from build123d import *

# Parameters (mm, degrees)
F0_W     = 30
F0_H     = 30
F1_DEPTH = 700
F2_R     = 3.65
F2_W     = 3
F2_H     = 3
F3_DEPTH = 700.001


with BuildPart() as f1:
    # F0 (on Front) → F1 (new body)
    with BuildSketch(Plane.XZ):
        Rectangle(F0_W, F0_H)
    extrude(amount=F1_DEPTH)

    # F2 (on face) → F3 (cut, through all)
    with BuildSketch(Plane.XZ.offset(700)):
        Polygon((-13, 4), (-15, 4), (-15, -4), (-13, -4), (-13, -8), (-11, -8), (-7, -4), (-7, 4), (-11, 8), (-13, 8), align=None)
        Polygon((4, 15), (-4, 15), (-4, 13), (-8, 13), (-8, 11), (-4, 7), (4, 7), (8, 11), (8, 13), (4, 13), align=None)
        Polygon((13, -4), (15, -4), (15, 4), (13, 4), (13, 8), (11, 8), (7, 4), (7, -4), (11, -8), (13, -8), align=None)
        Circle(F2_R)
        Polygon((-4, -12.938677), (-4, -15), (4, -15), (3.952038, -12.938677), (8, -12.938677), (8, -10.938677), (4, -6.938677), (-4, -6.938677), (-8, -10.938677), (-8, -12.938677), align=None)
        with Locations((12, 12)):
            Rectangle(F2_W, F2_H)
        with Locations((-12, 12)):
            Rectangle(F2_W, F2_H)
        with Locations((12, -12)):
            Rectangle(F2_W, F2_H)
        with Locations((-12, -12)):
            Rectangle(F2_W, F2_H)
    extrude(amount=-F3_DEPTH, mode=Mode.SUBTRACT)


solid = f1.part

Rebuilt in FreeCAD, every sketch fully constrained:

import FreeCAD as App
import Part
import Sketcher
Q = App.Units.Quantity

doc = App.newDocument("Part")
body = doc.addObject("PartDesign::Body", "Body")

sketch1 = doc.addObject("Sketcher::SketchObject", "Sketch")
body.addObject(sketch1)
sketch1.AttachmentSupport = (doc.XZ_Plane, [""])
sketch1.MapMode = "FlatFace"
sketch1.addGeometry(Part.LineSegment(App.Vector(-15, 15, 0), App.Vector(-15, -15, 0)), False)
sketch1.addGeometry(Part.LineSegment(App.Vector(-15, -15, 0), App.Vector(15, -15, 0)), False)
sketch1.addGeometry(Part.LineSegment(App.Vector(15, -15, 0), App.Vector(15, 15, 0)), False)
sketch1.addGeometry(Part.LineSegment(App.Vector(15, 15, 0), App.Vector(-15, 15, 0)), False)
sketch1.addConstraint(Sketcher.Constraint("Coincident", 0, 2, 1, 1))
sketch1.addConstraint(Sketcher.Constraint("Coincident", 1, 2, 2, 1))
sketch1.addConstraint(Sketcher.Constraint("Coincident", 2, 2, 3, 1))
sketch1.addConstraint(Sketcher.Constraint("Coincident", 3, 2, 0, 1))
sketch1.addConstraint(Sketcher.Constraint("Vertical", 0))
sketch1.addConstraint(Sketcher.Constraint("Horizontal", 1))
sketch1.addConstraint(Sketcher.Constraint("Vertical", 2))
sketch1.addConstraint(Sketcher.Constraint("Horizontal", 3))
sketch1.addConstraint(Sketcher.Constraint("Symmetric", 0, 2, 2, 2, -1, 1))
sketch1.addConstraint(Sketcher.Constraint("Equal", 3, 0))
sketch1.addConstraint(Sketcher.Constraint("DistanceX", 1, 1, 1, 2, Q("30 mm")))
pad1 = doc.addObject("PartDesign::Pad", "Pad")
body.addObject(pad1)
pad1.Profile = sketch1
pad1.Length = 700

sketch2 = doc.addObject("Sketcher::SketchObject", "Sketch001")
body.addObject(sketch2)
sketch2.AttachmentSupport = (doc.XZ_Plane, [""])
sketch2.MapMode = "FlatFace"
sketch2.AttachmentOffset = App.Placement(App.Vector(0, 0, 700), App.Rotation())
sketch2.addGeometry(Part.LineSegment(App.Vector(-13, 4, 0), App.Vector(-15, 4, 0)), False)
sketch2.addGeometry(Part.LineSegment(App.Vector(-15, 4, 0), App.Vector(-15, -4, 0)), False)
sketch2.addGeometry(Part.LineSegment(App.Vector(-15, -4, 0), App.Vector(-13, -4, 0)), False)
sketch2.addGeometry(Part.LineSegment(App.Vector(-13, -4, 0), App.Vector(-13, -8, 0)), False)
sketch2.addGeometry(Part.LineSegment(App.Vector(-13, -8, 0), App.Vector(-11, -8, 0)), False)
sketch2.addGeometry(Part.LineSegment(App.Vector(-11, -8, 0), App.Vector(-7, -4, 0)), False)
sketch2.addGeometry(Part.LineSegment(App.Vector(-7, -4, 0), App.Vector(-7, 4, 0)), False)
sketch2.addGeometry(Part.LineSegment(App.Vector(-7, 4, 0), App.Vector(-11, 8, 0)), False)
sketch2.addGeometry(Part.LineSegment(App.Vector(-11, 8, 0), App.Vector(-13, 8, 0)), False)
sketch2.addGeometry(Part.LineSegment(App.Vector(-13, 8, 0), App.Vector(-13, 4, 0)), False)
sketch2.addGeometry(Part.LineSegment(App.Vector(4, 15, 0), App.Vector(-4, 15, 0)), False)
sketch2.addGeometry(Part.LineSegment(App.Vector(-4, 15, 0), App.Vector(-4, 13, 0)), False)
sketch2.addGeometry(Part.LineSegment(App.Vector(-4, 13, 0), App.Vector(-8, 13, 0)), False)
sketch2.addGeometry(Part.LineSegment(App.Vector(-8, 13, 0), App.Vector(-8, 11, 0)), False)
sketch2.addGeometry(Part.LineSegment(App.Vector(-8, 11, 0), App.Vector(-4, 7, 0)), False)
sketch2.addGeometry(Part.LineSegment(App.Vector(-4, 7, 0), App.Vector(4, 7, 0)), False)
sketch2.addGeometry(Part.LineSegment(App.Vector(4, 7, 0), App.Vector(8, 11, 0)), False)
sketch2.addGeometry(Part.LineSegment(App.Vector(8, 11, 0), App.Vector(8, 13, 0)), False)
sketch2.addGeometry(Part.LineSegment(App.Vector(8, 13, 0), App.Vector(4, 13, 0)), False)
sketch2.addGeometry(Part.LineSegment(App.Vector(4, 13, 0), App.Vector(4, 15, 0)), False)
sketch2.addGeometry(Part.LineSegment(App.Vector(13, -4, 0), App.Vector(15, -4, 0)), False)
sketch2.addGeometry(Part.LineSegment(App.Vector(15, -4, 0), App.Vector(15, 4, 0)), False)
sketch2.addGeometry(Part.LineSegment(App.Vector(15, 4, 0), App.Vector(13, 4, 0)), False)
sketch2.addGeometry(Part.LineSegment(App.Vector(13, 4, 0), App.Vector(13, 8, 0)), False)
sketch2.addGeometry(Part.LineSegment(App.Vector(13, 8, 0), App.Vector(11, 8, 0)), False)
sketch2.addGeometry(Part.LineSegment(App.Vector(11, 8, 0), App.Vector(7, 4, 0)), False)
sketch2.addGeometry(Part.LineSegment(App.Vector(7, 4, 0), App.Vector(7, -4, 0)), False)
sketch2.addGeometry(Part.LineSegment(App.Vector(7, -4, 0), App.Vector(11, -8, 0)), False)
sketch2.addGeometry(Part.LineSegment(App.Vector(11, -8, 0), App.Vector(13, -8, 0)), False)
sketch2.addGeometry(Part.LineSegment(App.Vector(13, -8, 0), App.Vector(13, -4, 0)), False)
sketch2.addGeometry(Part.Circle(App.Vector(0, 0, 0), App.Vector(0, 0, 1), 3.65), False)
sketch2.addGeometry(Part.LineSegment(App.Vector(-4, -12.938677, 0), App.Vector(-4, -15, 0)), False)
sketch2.addGeometry(Part.LineSegment(App.Vector(-4, -15, 0), App.Vector(4, -15, 0)), False)
sketch2.addGeometry(Part.LineSegment(App.Vector(4, -15, 0), App.Vector(3.952038, -12.938677, 0)), False)
sketch2.addGeometry(Part.LineSegment(App.Vector(3.952038, -12.938677, 0), App.Vector(8, -12.938677, 0)), False)
sketch2.addGeometry(Part.LineSegment(App.Vector(8, -12.938677, 0), App.Vector(8, -10.938677, 0)), False)
sketch2.addGeometry(Part.LineSegment(App.Vector(8, -10.938677, 0), App.Vector(4, -6.938677, 0)), False)
sketch2.addGeometry(Part.LineSegment(App.Vector(4, -6.938677, 0), App.Vector(-4, -6.938677, 0)), False)
sketch2.addGeometry(Part.LineSegment(App.Vector(-4, -6.938677, 0), App.Vector(-8, -10.938677, 0)), False)
sketch2.addGeometry(Part.LineSegment(App.Vector(-8, -10.938677, 0), App.Vector(-8, -12.938677, 0)), False)
sketch2.addGeometry(Part.LineSegment(App.Vector(-8, -12.938677, 0), App.Vector(-4, -12.938677, 0)), False)
sketch2.addGeometry(Part.LineSegment(App.Vector(10.5, 13.5, 0), App.Vector(10.5, 10.5, 0)), False)
sketch2.addGeometry(Part.LineSegment(App.Vector(10.5, 10.5, 0), App.Vector(13.5, 10.5, 0)), False)
sketch2.addGeometry(Part.LineSegment(App.Vector(13.5, 10.5, 0), App.Vector(13.5, 13.5, 0)), False)
sketch2.addGeometry(Part.LineSegment(App.Vector(13.5, 13.5, 0), App.Vector(10.5, 13.5, 0)), False)
sketch2.addGeometry(Part.LineSegment(App.Vector(-13.5, 13.5, 0), App.Vector(-13.5, 10.5, 0)), False)
sketch2.addGeometry(Part.LineSegment(App.Vector(-13.5, 10.5, 0), App.Vector(-10.5, 10.5, 0)), False)
sketch2.addGeometry(Part.LineSegment(App.Vector(-10.5, 10.5, 0), App.Vector(-10.5, 13.5, 0)), False)
sketch2.addGeometry(Part.LineSegment(App.Vector(-10.5, 13.5, 0), App.Vector(-13.5, 13.5, 0)), False)
sketch2.addGeometry(Part.LineSegment(App.Vector(10.5, -10.5, 0), App.Vector(10.5, -13.5, 0)), False)
sketch2.addGeometry(Part.LineSegment(App.Vector(10.5, -13.5, 0), App.Vector(13.5, -13.5, 0)), False)
sketch2.addGeometry(Part.LineSegment(App.Vector(13.5, -13.5, 0), App.Vector(13.5, -10.5, 0)), False)
sketch2.addGeometry(Part.LineSegment(App.Vector(13.5, -10.5, 0), App.Vector(10.5, -10.5, 0)), False)
sketch2.addGeometry(Part.LineSegment(App.Vector(-13.5, -10.5, 0), App.Vector(-13.5, -13.5, 0)), False)
sketch2.addGeometry(Part.LineSegment(App.Vector(-13.5, -13.5, 0), App.Vector(-10.5, -13.5, 0)), False)
sketch2.addGeometry(Part.LineSegment(App.Vector(-10.5, -13.5, 0), App.Vector(-10.5, -10.5, 0)), False)
sketch2.addGeometry(Part.LineSegment(App.Vector(-10.5, -10.5, 0), App.Vector(-13.5, -10.5, 0)), False)
sketch2.addConstraint(Sketcher.Constraint("Coincident", 0, 2, 1, 1))
sketch2.addConstraint(Sketcher.Constraint("Coincident", 1, 2, 2, 1))
sketch2.addConstraint(Sketcher.Constraint("Coincident", 2, 2, 3, 1))
sketch2.addConstraint(Sketcher.Constraint("Coincident", 3, 2, 4, 1))
sketch2.addConstraint(Sketcher.Constraint("Coincident", 4, 2, 5, 1))
sketch2.addConstraint(Sketcher.Constraint("Coincident", 5, 2, 6, 1))
sketch2.addConstraint(Sketcher.Constraint("Coincident", 6, 2, 7, 1))
sketch2.addConstraint(Sketcher.Constraint("Coincident", 7, 2, 8, 1))
sketch2.addConstraint(Sketcher.Constraint("Coincident", 8, 2, 9, 1))
sketch2.addConstraint(Sketcher.Constraint("Coincident", 9, 2, 0, 1))
sketch2.addConstraint(Sketcher.Constraint("Coincident", 10, 2, 11, 1))
sketch2.addConstraint(Sketcher.Constraint("Coincident", 11, 2, 12, 1))
sketch2.addConstraint(Sketcher.Constraint("Coincident", 12, 2, 13, 1))
sketch2.addConstraint(Sketcher.Constraint("Coincident", 13, 2, 14, 1))
sketch2.addConstraint(Sketcher.Constraint("Coincident", 14, 2, 15, 1))
sketch2.addConstraint(Sketcher.Constraint("Coincident", 15, 2, 16, 1))
sketch2.addConstraint(Sketcher.Constraint("Coincident", 16, 2, 17, 1))
sketch2.addConstraint(Sketcher.Constraint("Coincident", 17, 2, 18, 1))
sketch2.addConstraint(Sketcher.Constraint("Coincident", 18, 2, 19, 1))
sketch2.addConstraint(Sketcher.Constraint("Coincident", 19, 2, 10, 1))
sketch2.addConstraint(Sketcher.Constraint("Coincident", 20, 2, 21, 1))
sketch2.addConstraint(Sketcher.Constraint("Coincident", 21, 2, 22, 1))
sketch2.addConstraint(Sketcher.Constraint("Coincident", 22, 2, 23, 1))
sketch2.addConstraint(Sketcher.Constraint("Coincident", 23, 2, 24, 1))
sketch2.addConstraint(Sketcher.Constraint("Coincident", 24, 2, 25, 1))
sketch2.addConstraint(Sketcher.Constraint("Coincident", 25, 2, 26, 1))
sketch2.addConstraint(Sketcher.Constraint("Coincident", 26, 2, 27, 1))
sketch2.addConstraint(Sketcher.Constraint("Coincident", 27, 2, 28, 1))
sketch2.addConstraint(Sketcher.Constraint("Coincident", 28, 2, 29, 1))
sketch2.addConstraint(Sketcher.Constraint("Coincident", 29, 2, 20, 1))
sketch2.addConstraint(Sketcher.Constraint("Coincident", 31, 2, 32, 1))
sketch2.addConstraint(Sketcher.Constraint("Coincident", 32, 2, 33, 1))
sketch2.addConstraint(Sketcher.Constraint("Coincident", 33, 2, 34, 1))
sketch2.addConstraint(Sketcher.Constraint("Coincident", 34, 2, 35, 1))
sketch2.addConstraint(Sketcher.Constraint("Coincident", 35, 2, 36, 1))
sketch2.addConstraint(Sketcher.Constraint("Coincident", 36, 2, 37, 1))
sketch2.addConstraint(Sketcher.Constraint("Coincident", 37, 2, 38, 1))
sketch2.addConstraint(Sketcher.Constraint("Coincident", 38, 2, 39, 1))
sketch2.addConstraint(Sketcher.Constraint("Coincident", 39, 2, 40, 1))
sketch2.addConstraint(Sketcher.Constraint("Coincident", 40, 2, 31, 1))
sketch2.addConstraint(Sketcher.Constraint("Coincident", 41, 2, 42, 1))
sketch2.addConstraint(Sketcher.Constraint("Coincident", 42, 2, 43, 1))
sketch2.addConstraint(Sketcher.Constraint("Coincident", 43, 2, 44, 1))
sketch2.addConstraint(Sketcher.Constraint("Coincident", 44, 2, 41, 1))
sketch2.addConstraint(Sketcher.Constraint("Coincident", 45, 2, 46, 1))
sketch2.addConstraint(Sketcher.Constraint("Coincident", 46, 2, 47, 1))
sketch2.addConstraint(Sketcher.Constraint("Coincident", 47, 2, 48, 1))
sketch2.addConstraint(Sketcher.Constraint("Coincident", 48, 2, 45, 1))
sketch2.addConstraint(Sketcher.Constraint("Coincident", 49, 2, 50, 1))
sketch2.addConstraint(Sketcher.Constraint("Coincident", 50, 2, 51, 1))
sketch2.addConstraint(Sketcher.Constraint("Coincident", 51, 2, 52, 1))
sketch2.addConstraint(Sketcher.Constraint("Coincident", 52, 2, 49, 1))
sketch2.addConstraint(Sketcher.Constraint("Coincident", 53, 2, 54, 1))
sketch2.addConstraint(Sketcher.Constraint("Coincident", 54, 2, 55, 1))
sketch2.addConstraint(Sketcher.Constraint("Coincident", 55, 2, 56, 1))
sketch2.addConstraint(Sketcher.Constraint("Coincident", 56, 2, 53, 1))
sketch2.addConstraint(Sketcher.Constraint("Horizontal", 0))
sketch2.addConstraint(Sketcher.Constraint("Vertical", 1))
sketch2.addConstraint(Sketcher.Constraint("Horizontal", 2))
sketch2.addConstraint(Sketcher.Constraint("Vertical", 3))
sketch2.addConstraint(Sketcher.Constraint("Horizontal", 4))
sketch2.addConstraint(Sketcher.Constraint("Vertical", 6))
sketch2.addConstraint(Sketcher.Constraint("Horizontal", 8))
sketch2.addConstraint(Sketcher.Constraint("Vertical", 9))
sketch2.addConstraint(Sketcher.Constraint("Horizontal", 10))
sketch2.addConstraint(Sketcher.Constraint("Vertical", 11))
sketch2.addConstraint(Sketcher.Constraint("Horizontal", 12))
sketch2.addConstraint(Sketcher.Constraint("Vertical", 13))
sketch2.addConstraint(Sketcher.Constraint("Horizontal", 15))
sketch2.addConstraint(Sketcher.Constraint("Vertical", 17))
sketch2.addConstraint(Sketcher.Constraint("Horizontal", 18))
sketch2.addConstraint(Sketcher.Constraint("Vertical", 19))
sketch2.addConstraint(Sketcher.Constraint("Horizontal", 20))
sketch2.addConstraint(Sketcher.Constraint("Vertical", 21))
sketch2.addConstraint(Sketcher.Constraint("Horizontal", 22))
sketch2.addConstraint(Sketcher.Constraint("Vertical", 23))
sketch2.addConstraint(Sketcher.Constraint("Horizontal", 24))
sketch2.addConstraint(Sketcher.Constraint("Vertical", 26))
sketch2.addConstraint(Sketcher.Constraint("Horizontal", 28))
sketch2.addConstraint(Sketcher.Constraint("Vertical", 29))
sketch2.addConstraint(Sketcher.Constraint("Vertical", 31))
sketch2.addConstraint(Sketcher.Constraint("Horizontal", 32))
sketch2.addConstraint(Sketcher.Constraint("Horizontal", 34))
sketch2.addConstraint(Sketcher.Constraint("Vertical", 35))
sketch2.addConstraint(Sketcher.Constraint("Horizontal", 37))
sketch2.addConstraint(Sketcher.Constraint("Vertical", 39))
sketch2.addConstraint(Sketcher.Constraint("Horizontal", 40))
sketch2.addConstraint(Sketcher.Constraint("Vertical", 41))
sketch2.addConstraint(Sketcher.Constraint("Horizontal", 42))
sketch2.addConstraint(Sketcher.Constraint("Vertical", 43))
sketch2.addConstraint(Sketcher.Constraint("Horizontal", 44))
sketch2.addConstraint(Sketcher.Constraint("Vertical", 45))
sketch2.addConstraint(Sketcher.Constraint("Horizontal", 46))
sketch2.addConstraint(Sketcher.Constraint("Vertical", 47))
sketch2.addConstraint(Sketcher.Constraint("Horizontal", 48))
sketch2.addConstraint(Sketcher.Constraint("Vertical", 49))
sketch2.addConstraint(Sketcher.Constraint("Horizontal", 50))
sketch2.addConstraint(Sketcher.Constraint("Vertical", 51))
sketch2.addConstraint(Sketcher.Constraint("Horizontal", 52))
sketch2.addConstraint(Sketcher.Constraint("Vertical", 53))
sketch2.addConstraint(Sketcher.Constraint("Horizontal", 54))
sketch2.addConstraint(Sketcher.Constraint("Vertical", 55))
sketch2.addConstraint(Sketcher.Constraint("Horizontal", 56))
sketch2.addConstraint(Sketcher.Constraint("Coincident", 30, 3, -1, 1))
sketch2.addConstraint(Sketcher.Constraint("Symmetric", 0, 2, 20, 2, -1, 1))
sketch2.addConstraint(Sketcher.Constraint("Symmetric", 2, 2, 22, 2, -1, 1))
sketch2.addConstraint(Sketcher.Constraint("Symmetric", 4, 2, 24, 2, -1, 1))
sketch2.addConstraint(Sketcher.Constraint("Symmetric", 5, 2, 25, 2, -1, 1))
sketch2.addConstraint(Sketcher.Constraint("Symmetric", 7, 2, 27, 2, -1, 1))
sketch2.addConstraint(Sketcher.Constraint("Symmetric", 19, 2, 31, 2, -1, 1))
sketch2.addConstraint(Sketcher.Constraint("Symmetric", 47, 2, 49, 2, -1, 1))
sketch2.addConstraint(Sketcher.Constraint("Symmetric", 45, 2, 51, 2, -1, 1))
sketch2.addConstraint(Sketcher.Constraint("Symmetric", 43, 2, 53, 2, -1, 1))
sketch2.addConstraint(Sketcher.Constraint("Symmetric", 41, 2, 55, 2, -1, 1))
sketch2.addConstraint(Sketcher.Constraint("Symmetric", 13, 2, 16, 2, -2))
sketch2.addConstraint(Sketcher.Constraint("Symmetric", 11, 2, 18, 2, -2))
sketch2.addConstraint(Sketcher.Constraint("Symmetric", 9, 2, 22, 2, -2))
sketch2.addConstraint(Sketcher.Constraint("Symmetric", 7, 2, 24, 2, -2))
sketch2.addConstraint(Sketcher.Constraint("Symmetric", 35, 2, 38, 2, -2))
sketch2.addConstraint(Sketcher.Constraint("Symmetric", 42, 2, 45, 2, -2))
sketch2.addConstraint(Sketcher.Constraint("Symmetric", 44, 2, 47, 2, -2))
sketch2.addConstraint(Sketcher.Constraint("Perpendicular", 5, 7))
sketch2.addConstraint(Sketcher.Constraint("Parallel", 7, 14))
sketch2.addConstraint(Sketcher.Constraint("Perpendicular", 14, 16))
sketch2.addConstraint(Sketcher.Constraint("Perpendicular", 25, 27))
sketch2.addConstraint(Sketcher.Constraint("Parallel", 27, 36))
sketch2.addConstraint(Sketcher.Constraint("Perpendicular", 36, 38))
sketch2.addConstraint(Sketcher.Constraint("Horizontal", 2, 2, 5, 2))
sketch2.addConstraint(Sketcher.Constraint("Horizontal", 0, 2, 6, 2))
sketch2.addConstraint(Sketcher.Constraint("Horizontal", 34, 2, 39, 2))
sketch2.addConstraint(Sketcher.Constraint("Vertical", 11, 2, 14, 2))
sketch2.addConstraint(Sketcher.Constraint("Vertical", 23, 2, 28, 2))
sketch2.addConstraint(Sketcher.Constraint("Vertical", 19, 2, 32, 2))
sketch2.addConstraint(Sketcher.Constraint("Vertical", 17, 2, 34, 2))
sketch2.addConstraint(Sketcher.Constraint("Vertical", 32, 2, 36, 2))
sketch2.addConstraint(Sketcher.Constraint("Equal", 2, 4))
sketch2.addConstraint(Sketcher.Constraint("Equal", 37, 1))
sketch2.addConstraint(Sketcher.Constraint("Equal", 40, 3))
sketch2.addConstraint(Sketcher.Constraint("Equal", 28, 11))
sketch2.addConstraint(Sketcher.Constraint("Equal", 11, 13))
sketch2.addConstraint(Sketcher.Constraint("Equal", 19, 35))
sketch2.addConstraint(Sketcher.Constraint("Equal", 56, 41))
sketch2.addConstraint(Sketcher.Constraint("Diameter", 30, Q("7.3 mm")))
sketch2.addConstraint(Sketcher.Constraint("DistanceX", 0, 2, 0, 1, Q("2 mm")))
sketch2.addConstraint(Sketcher.Constraint("DistanceX", 10, 2, 10, 1, Q("8 mm")))
sketch2.addConstraint(Sketcher.Constraint("DistanceX", 12, 2, 12, 1, Q("4 mm")))
sketch2.addConstraint(Sketcher.Constraint("DistanceX", 42, 1, 42, 2, Q("3 mm")))
sketch2.addConstraint(Sketcher.Constraint("DistanceX", 0, 2, -1, 1, Q("15 mm")))
sketch2.addConstraint(Sketcher.Constraint("DistanceY", -1, 1, 10, 2, Q("15 mm")))
sketch2.addConstraint(Sketcher.Constraint("DistanceX", -1, 1, 41, 2, Q("10.5 mm")))
sketch2.addConstraint(Sketcher.Constraint("DistanceY", -1, 1, 41, 2, Q("10.5 mm")))
sketch2.addConstraint(Sketcher.Constraint("Distance", 33, Q("2.061881 mm")))
sketch2.addConstraint(Sketcher.Constraint("DistanceX", 34, 1, 34, 2, Q("4.047962 mm")))
pocket1 = doc.addObject("PartDesign::Pocket", "Pocket")
body.addObject(pocket1)
pocket1.Profile = sketch2
pocket1.Type = "ThroughAll"

doc.recompute()
